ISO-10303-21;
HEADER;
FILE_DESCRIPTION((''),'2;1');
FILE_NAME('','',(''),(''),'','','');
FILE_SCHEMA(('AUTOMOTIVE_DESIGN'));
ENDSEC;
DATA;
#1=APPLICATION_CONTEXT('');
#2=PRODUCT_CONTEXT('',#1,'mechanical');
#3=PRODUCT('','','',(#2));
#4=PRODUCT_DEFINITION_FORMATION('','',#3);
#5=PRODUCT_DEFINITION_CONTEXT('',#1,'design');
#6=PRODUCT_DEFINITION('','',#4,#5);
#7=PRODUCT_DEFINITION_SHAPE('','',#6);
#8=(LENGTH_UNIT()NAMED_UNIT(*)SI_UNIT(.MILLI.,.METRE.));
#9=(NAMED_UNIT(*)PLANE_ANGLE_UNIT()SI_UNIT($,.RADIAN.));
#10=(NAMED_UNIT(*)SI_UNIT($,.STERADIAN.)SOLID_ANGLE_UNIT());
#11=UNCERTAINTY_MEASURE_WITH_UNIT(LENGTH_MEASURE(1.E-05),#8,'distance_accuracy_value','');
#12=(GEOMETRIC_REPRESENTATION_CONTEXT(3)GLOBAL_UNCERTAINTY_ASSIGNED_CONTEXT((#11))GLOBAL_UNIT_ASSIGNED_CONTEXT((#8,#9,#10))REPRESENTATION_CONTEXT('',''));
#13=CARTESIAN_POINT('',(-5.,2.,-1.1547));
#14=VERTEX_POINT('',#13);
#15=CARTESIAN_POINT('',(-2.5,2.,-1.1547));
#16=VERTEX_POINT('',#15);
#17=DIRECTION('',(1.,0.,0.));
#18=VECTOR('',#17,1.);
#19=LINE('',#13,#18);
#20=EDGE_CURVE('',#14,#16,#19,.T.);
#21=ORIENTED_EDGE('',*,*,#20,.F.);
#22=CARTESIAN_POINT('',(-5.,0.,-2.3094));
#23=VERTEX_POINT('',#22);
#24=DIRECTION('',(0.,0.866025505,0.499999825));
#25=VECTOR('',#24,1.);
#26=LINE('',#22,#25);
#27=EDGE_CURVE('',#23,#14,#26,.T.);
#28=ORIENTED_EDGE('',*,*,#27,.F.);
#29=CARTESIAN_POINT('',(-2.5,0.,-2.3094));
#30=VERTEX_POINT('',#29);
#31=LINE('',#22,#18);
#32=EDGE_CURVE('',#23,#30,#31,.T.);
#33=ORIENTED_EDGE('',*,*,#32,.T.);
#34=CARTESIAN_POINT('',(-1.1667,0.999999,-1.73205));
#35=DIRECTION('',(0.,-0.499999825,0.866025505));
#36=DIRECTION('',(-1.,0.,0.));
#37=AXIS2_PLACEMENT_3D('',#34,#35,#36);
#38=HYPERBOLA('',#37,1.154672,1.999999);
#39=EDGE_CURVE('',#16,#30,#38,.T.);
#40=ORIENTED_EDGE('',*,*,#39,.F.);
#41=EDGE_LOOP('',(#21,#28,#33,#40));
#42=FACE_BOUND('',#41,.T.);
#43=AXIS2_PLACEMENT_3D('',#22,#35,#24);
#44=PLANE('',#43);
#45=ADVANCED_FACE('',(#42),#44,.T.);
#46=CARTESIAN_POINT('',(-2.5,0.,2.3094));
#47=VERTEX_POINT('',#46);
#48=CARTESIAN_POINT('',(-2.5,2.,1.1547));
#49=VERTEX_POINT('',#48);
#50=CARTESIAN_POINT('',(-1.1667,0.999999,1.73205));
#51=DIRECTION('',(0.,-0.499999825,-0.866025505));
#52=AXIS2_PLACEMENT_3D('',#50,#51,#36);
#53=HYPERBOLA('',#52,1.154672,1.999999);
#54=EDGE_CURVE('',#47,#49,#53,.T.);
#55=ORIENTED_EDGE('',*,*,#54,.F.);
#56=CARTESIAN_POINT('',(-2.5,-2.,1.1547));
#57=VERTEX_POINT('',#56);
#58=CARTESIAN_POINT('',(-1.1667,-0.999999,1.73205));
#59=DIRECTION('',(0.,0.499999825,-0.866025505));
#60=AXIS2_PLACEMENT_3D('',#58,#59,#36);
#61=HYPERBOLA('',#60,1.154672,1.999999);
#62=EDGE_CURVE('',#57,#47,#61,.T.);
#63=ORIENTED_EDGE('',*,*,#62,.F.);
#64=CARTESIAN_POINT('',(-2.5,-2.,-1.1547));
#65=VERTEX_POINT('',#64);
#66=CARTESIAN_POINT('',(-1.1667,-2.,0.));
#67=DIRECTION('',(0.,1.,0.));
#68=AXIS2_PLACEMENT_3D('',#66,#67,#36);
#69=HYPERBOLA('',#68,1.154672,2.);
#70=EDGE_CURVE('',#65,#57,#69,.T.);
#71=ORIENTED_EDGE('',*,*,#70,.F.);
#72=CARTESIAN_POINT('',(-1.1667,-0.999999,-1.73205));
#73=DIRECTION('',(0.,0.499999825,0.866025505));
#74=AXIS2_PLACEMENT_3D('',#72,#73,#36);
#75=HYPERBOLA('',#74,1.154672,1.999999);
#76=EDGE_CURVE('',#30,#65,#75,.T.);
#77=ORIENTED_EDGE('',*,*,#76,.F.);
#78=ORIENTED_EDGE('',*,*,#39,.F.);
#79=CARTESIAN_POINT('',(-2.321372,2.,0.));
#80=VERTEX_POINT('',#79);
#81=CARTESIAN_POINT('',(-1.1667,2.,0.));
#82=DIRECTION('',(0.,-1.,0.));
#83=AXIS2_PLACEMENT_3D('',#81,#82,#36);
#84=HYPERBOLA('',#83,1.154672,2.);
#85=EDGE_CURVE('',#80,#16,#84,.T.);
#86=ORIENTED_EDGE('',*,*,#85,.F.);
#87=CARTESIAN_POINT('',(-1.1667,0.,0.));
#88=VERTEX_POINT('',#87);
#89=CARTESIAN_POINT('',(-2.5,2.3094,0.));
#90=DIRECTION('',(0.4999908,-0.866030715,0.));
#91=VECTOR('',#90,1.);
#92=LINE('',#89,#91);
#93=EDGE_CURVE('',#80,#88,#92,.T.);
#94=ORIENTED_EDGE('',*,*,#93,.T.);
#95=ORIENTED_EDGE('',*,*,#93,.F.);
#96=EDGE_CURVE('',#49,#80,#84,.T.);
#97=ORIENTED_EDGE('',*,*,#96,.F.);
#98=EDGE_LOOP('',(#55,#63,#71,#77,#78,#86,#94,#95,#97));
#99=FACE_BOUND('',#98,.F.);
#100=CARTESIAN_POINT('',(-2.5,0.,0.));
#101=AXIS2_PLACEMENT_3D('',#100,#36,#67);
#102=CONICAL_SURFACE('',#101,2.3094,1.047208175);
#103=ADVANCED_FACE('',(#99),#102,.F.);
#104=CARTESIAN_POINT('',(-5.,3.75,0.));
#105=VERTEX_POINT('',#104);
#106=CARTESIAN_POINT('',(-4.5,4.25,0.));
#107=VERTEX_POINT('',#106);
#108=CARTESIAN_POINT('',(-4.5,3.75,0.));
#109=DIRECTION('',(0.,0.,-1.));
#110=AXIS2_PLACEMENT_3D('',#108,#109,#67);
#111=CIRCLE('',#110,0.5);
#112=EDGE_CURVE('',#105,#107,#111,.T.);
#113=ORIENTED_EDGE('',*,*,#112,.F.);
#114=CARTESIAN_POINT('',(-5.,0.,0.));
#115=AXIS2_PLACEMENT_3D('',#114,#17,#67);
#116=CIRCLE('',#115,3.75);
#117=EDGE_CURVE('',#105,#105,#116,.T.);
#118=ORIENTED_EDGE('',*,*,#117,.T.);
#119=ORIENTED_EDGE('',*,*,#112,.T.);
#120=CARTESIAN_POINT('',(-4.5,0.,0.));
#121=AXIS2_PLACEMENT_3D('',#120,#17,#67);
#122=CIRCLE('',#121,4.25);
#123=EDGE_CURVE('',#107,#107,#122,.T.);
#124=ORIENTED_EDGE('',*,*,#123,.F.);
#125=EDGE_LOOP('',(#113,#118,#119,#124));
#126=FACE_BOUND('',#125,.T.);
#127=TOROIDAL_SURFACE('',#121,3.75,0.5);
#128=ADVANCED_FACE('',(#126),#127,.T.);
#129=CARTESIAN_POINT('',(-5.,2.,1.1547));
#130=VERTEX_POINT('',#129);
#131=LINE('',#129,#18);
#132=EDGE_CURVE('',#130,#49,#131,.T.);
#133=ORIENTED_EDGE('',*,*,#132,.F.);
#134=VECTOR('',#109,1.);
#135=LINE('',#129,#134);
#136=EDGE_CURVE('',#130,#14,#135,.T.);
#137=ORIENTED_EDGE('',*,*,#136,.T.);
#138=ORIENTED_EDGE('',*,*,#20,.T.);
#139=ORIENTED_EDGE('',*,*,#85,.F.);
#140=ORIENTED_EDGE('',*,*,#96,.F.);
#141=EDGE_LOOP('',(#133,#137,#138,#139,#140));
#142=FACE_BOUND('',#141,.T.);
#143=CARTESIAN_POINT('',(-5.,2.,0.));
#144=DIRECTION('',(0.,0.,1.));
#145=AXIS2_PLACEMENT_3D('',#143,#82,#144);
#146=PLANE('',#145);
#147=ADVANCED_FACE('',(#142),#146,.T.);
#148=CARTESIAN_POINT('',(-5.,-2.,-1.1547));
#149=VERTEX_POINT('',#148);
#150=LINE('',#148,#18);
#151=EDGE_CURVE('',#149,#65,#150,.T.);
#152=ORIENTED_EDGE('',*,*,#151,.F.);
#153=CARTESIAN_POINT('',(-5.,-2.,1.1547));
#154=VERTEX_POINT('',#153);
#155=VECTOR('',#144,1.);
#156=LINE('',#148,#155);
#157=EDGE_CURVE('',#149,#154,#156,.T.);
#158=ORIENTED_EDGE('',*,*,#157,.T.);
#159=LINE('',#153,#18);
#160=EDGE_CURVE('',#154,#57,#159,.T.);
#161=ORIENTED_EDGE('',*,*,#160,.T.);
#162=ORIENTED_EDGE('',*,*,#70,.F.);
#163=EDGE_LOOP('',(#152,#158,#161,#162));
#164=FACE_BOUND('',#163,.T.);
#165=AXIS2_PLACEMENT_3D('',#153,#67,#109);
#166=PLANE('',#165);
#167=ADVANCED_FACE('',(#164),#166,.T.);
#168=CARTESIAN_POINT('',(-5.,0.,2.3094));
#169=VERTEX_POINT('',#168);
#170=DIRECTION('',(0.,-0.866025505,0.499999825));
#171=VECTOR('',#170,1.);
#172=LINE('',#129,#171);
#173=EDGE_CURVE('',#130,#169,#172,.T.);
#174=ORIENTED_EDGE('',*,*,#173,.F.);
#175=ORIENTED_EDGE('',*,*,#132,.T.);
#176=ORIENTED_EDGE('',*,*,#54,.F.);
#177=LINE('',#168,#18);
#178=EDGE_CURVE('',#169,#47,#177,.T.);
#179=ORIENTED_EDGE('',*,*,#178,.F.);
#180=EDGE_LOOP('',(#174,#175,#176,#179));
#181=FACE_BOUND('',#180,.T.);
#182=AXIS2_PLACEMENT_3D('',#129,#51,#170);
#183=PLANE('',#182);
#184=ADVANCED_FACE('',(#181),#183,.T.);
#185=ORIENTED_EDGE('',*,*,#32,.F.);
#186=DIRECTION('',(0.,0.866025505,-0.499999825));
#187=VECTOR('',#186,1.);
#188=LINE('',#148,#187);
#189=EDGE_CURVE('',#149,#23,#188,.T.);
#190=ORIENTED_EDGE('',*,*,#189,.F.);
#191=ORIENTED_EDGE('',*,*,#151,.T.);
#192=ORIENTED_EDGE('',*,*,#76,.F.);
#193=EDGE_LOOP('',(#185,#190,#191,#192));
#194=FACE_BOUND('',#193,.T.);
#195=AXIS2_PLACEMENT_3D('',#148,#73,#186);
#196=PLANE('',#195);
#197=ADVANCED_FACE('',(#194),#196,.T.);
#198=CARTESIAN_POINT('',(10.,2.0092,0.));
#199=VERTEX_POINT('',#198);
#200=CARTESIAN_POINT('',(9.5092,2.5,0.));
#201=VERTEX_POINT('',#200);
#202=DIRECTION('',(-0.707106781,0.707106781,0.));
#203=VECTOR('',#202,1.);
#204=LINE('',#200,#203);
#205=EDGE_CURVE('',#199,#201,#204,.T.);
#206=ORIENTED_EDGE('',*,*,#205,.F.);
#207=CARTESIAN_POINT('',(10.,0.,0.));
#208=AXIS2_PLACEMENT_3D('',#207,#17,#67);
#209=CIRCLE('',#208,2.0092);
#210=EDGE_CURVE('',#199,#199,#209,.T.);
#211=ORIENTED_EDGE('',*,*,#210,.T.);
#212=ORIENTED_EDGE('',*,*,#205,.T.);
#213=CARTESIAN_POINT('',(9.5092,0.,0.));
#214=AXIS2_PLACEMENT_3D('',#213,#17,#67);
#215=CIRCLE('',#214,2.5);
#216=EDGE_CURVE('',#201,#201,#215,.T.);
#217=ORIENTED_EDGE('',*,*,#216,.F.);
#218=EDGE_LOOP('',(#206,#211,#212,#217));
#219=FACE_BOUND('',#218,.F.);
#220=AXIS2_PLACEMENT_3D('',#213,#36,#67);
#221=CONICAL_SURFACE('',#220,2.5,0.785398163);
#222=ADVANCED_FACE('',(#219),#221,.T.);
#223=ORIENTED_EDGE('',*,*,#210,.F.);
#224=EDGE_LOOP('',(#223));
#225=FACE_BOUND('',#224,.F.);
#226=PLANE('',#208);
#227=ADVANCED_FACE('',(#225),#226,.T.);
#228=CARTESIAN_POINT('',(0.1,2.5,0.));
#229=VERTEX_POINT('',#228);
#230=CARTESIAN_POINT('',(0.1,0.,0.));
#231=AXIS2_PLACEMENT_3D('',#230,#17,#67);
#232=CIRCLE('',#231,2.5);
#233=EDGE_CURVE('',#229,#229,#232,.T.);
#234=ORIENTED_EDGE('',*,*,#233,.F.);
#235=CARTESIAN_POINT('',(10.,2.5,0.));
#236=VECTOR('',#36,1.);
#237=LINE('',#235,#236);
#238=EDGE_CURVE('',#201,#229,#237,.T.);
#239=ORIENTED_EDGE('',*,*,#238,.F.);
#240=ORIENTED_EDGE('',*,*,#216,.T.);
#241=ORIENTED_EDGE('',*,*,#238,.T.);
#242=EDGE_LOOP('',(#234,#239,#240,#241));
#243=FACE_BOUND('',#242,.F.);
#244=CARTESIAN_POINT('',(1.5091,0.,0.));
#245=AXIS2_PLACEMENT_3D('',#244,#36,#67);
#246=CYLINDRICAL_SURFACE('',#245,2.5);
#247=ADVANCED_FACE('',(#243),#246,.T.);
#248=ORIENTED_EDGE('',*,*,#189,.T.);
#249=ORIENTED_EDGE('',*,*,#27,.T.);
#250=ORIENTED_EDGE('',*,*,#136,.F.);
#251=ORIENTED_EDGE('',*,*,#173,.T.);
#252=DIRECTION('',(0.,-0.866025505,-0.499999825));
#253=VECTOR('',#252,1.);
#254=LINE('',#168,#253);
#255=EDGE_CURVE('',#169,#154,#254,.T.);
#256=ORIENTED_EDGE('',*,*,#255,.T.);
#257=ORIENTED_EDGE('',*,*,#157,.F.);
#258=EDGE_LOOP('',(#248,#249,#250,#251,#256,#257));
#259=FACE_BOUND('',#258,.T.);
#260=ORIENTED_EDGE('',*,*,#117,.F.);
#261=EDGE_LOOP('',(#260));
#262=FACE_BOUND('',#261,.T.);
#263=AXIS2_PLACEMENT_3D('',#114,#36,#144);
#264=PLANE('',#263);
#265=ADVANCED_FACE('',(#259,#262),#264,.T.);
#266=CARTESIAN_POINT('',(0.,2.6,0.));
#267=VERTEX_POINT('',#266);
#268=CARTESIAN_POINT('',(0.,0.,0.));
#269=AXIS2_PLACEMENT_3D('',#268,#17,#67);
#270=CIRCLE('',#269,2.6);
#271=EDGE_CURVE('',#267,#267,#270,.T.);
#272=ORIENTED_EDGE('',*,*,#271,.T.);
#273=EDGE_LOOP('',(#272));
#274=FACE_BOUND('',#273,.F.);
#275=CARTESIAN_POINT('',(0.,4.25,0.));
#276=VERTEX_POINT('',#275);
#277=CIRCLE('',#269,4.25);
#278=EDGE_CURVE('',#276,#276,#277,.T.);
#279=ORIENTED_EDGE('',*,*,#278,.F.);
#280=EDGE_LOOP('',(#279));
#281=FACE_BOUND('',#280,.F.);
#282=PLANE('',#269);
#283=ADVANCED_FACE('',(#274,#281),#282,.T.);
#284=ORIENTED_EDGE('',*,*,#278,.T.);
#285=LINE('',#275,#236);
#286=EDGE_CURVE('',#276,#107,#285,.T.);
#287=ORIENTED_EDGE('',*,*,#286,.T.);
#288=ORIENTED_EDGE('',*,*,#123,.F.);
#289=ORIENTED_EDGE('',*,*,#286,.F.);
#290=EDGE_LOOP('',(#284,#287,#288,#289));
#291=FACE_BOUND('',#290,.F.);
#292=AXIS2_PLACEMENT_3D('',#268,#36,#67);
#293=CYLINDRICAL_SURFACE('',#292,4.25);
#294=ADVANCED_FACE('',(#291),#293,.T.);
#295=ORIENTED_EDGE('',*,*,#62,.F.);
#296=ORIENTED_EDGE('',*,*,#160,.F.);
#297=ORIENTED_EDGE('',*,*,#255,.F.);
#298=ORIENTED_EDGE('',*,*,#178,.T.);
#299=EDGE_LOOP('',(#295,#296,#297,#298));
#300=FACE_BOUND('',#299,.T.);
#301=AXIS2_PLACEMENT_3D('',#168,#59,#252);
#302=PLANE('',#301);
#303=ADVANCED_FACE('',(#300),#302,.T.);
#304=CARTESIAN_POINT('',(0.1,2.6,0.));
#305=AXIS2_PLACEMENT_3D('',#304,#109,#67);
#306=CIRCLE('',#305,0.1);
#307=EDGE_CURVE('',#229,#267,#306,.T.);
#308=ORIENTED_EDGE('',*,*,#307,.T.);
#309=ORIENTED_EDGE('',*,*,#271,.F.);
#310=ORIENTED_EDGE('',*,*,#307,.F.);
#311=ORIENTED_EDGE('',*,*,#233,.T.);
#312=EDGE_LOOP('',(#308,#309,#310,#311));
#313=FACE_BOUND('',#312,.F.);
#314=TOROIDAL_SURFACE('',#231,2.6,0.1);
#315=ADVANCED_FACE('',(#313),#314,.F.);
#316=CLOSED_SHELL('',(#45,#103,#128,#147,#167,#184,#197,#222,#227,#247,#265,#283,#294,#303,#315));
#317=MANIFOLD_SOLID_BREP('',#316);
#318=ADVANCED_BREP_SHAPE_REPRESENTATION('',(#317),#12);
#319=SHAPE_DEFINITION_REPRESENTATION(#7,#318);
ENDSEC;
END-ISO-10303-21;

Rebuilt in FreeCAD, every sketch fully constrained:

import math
import FreeCAD as App
import Part
import Sketcher

V = App.Vector
Q = App.Units.Quantity


def edges_at(feature, points):
    """Names of the edges that pass closest to the given points."""
    edges = feature.Shape.Edges
    near = lambda p: min(range(len(edges)), key=lambda i: edges[i].distToShape(Part.Vertex(*p))[0])
    return sorted({f"Edge{near(p) + 1}" for p in points})

doc = App.newDocument("Part")
body = doc.addObject("PartDesign::Body", "Body")

# Sketch on XY plane
sketch1 = body.newObject("Sketcher::SketchObject", "Sketch")
sketch1.AttachmentSupport = (doc.getObject("XY_Plane"), [""])
sketch1.MapMode = "FlatFace"
sketch1.addGeometry([
    Part.LineSegment(V(-2.5, 2.3094, 0), V(-1.1667, 0, 0)),  # 0
    Part.LineSegment(V(-1.1667, 0, 0), V(10, 0, 0)),  # 1
    Part.LineSegment(V(10, 0, 0), V(10, 2.5, 0)),  # 2
    Part.LineSegment(V(10, 2.5, 0), V(0, 2.5, 0)),  # 3
    Part.LineSegment(V(0, 2.5, 0), V(0, 4.25, 0)),  # 4
    Part.LineSegment(V(0, 4.25, 0), V(-5, 4.25, 0)),  # 5
    Part.LineSegment(V(-5, 4.25, 0), V(-5, 2.3094, 0)),  # 6
    Part.LineSegment(V(-5, 2.3094, 0), V(-2.5, 2.3094, 0)),  # 7
], False)
sketch1.addConstraint([
    Sketcher.Constraint("Coincident", 0, 2, 1, 1),
    Sketcher.Constraint("Coincident", 1, 2, 2, 1),
    Sketcher.Constraint("Coincident", 2, 2, 3, 1),
    Sketcher.Constraint("Coincident", 3, 2, 4, 1),
    Sketcher.Constraint("Coincident", 4, 2, 5, 1),
    Sketcher.Constraint("Coincident", 5, 2, 6, 1),
    Sketcher.Constraint("Coincident", 6, 2, 7, 1),
    Sketcher.Constraint("Coincident", 7, 2, 0, 1),
    Sketcher.Constraint("Horizontal", 1),
    Sketcher.Constraint("Vertical", 2),
    Sketcher.Constraint("Horizontal", 3),
    Sketcher.Constraint("Vertical", 4),
    Sketcher.Constraint("Horizontal", 5),
    Sketcher.Constraint("Vertical", 6),
    Sketcher.Constraint("Horizontal", 7),
    Sketcher.Constraint("PointOnObject", 0, 2, -1),
    Sketcher.Constraint("PointOnObject", 3, 2, -2),
    Sketcher.Constraint("Equal", 7, 2),
    Sketcher.Constraint("DistanceX", 3, 2, 3, 1, Q("10 mm")),
    Sketcher.Constraint("DistanceX", 5, 2, 5, 1, Q("5 mm")),
    Sketcher.Constraint("DistanceX", 7, 1, 7, 2, Q("2.5 mm")),
    Sketcher.Constraint("Angle", 0, Q("-60.0006 deg")),
    Sketcher.Constraint("DistanceY", 4, 1, 4, 2, Q("1.75 mm")),
    Sketcher.Constraint("DistanceX", 1, 1, 1, 2, Q("11.1667 mm")),
])
revolution = body.newObject("PartDesign::Revolution", "Revolution")
revolution.Profile = sketch1
revolution.ReferenceAxis = (sketch1, ["H_Axis"])
revolution.Angle = 360

# Sketch on YZ plane
sketch2 = body.newObject("Sketcher::SketchObject", "Sketch001")
sketch2.AttachmentSupport = (doc.getObject("YZ_Plane"), [""])
sketch2.MapMode = "FlatFace"
sketch2.AttachmentOffset = App.Placement(V(0, 0, -5), App.Rotation())
sketch2.addGeometry([
    Part.LineSegment(V(2, 1.1547, 0), V(0, 2.3094, 0)),  # 0
    Part.ArcOfCircle(Part.Circle(V(0, 0, 0), V(0, 0, 1), 2.3094), math.radians(29.999988), math.radians(90)),  # 1
    Part.ArcOfCircle(Part.Circle(V(0, 0, 0), V(0, 0, 1), 2.3094), math.radians(90), math.radians(150.000012)),  # 2
    Part.LineSegment(V(0, 2.3094, 0), V(-2, 1.1547, 0)),  # 3
    Part.ArcOfCircle(Part.Circle(V(0, 0, 0), V(0, 0, 1), 2.3094), math.radians(-29.999988), math.radians(29.999988)),  # 4
    Part.LineSegment(V(2, -1.1547, 0), V(2, 1.1547, 0)),  # 5
    Part.LineSegment(V(-2, 1.1547, 0), V(-2, -1.1547, 0)),  # 6
    Part.ArcOfCircle(Part.Circle(V(0, 0, 0), V(0, 0, 1), 2.3094), math.radians(150.000012), math.radians(209.999988)),  # 7
    Part.LineSegment(V(-2, -1.1547, 0), V(0, -2.3094, 0)),  # 8
    Part.ArcOfCircle(Part.Circle(V(0, 0, 0), V(0, 0, 1), 2.3094), math.radians(-150.000012), math.radians(-90)),  # 9
    Part.ArcOfCircle(Part.Circle(V(0, 0, 0), V(0, 0, 1), 2.3094), math.radians(-90), math.radians(-29.999988)),  # 10
    Part.LineSegment(V(0, -2.3094, 0), V(2, -1.1547, 0)),  # 11
], False)
sketch2.addConstraint([
    Sketcher.Constraint("Coincident", 0, 1, 1, 1),
    Sketcher.Constraint("Coincident", 1, 2, 0, 2),
    Sketcher.Constraint("Coincident", 2, 1, 3, 1),
    Sketcher.Constraint("Coincident", 3, 2, 2, 2),
    Sketcher.Constraint("Coincident", 4, 1, 5, 1),
    Sketcher.Constraint("Coincident", 5, 2, 4, 2),
    Sketcher.Constraint("Coincident", 6, 1, 7, 1),
    Sketcher.Constraint("Coincident", 7, 2, 6, 2),
    Sketcher.Constraint("Coincident", 8, 1, 9, 1),
    Sketcher.Constraint("Coincident", 9, 2, 8, 2),
    Sketcher.Constraint("Coincident", 10, 1, 11, 1),
    Sketcher.Constraint("Coincident", 11, 2, 10, 2),
    Sketcher.Constraint("Vertical", 5),
    Sketcher.Constraint("Vertical", 6),
    Sketcher.Constraint("Coincident", 1, 3, -1, 1),
    Sketcher.Constraint("Coincident", 2, 3, -1, 1),
    Sketcher.Constraint("Coincident", 4, 3, -1, 1),
    Sketcher.Constraint("Coincident", 7, 3, -1, 1),
    Sketcher.Constraint("Coincident", 9, 3, -1, 1),
    Sketcher.Constraint("Coincident", 10, 3, -1, 1),
    Sketcher.Constraint("Coincident", 2, 1, 1, 2),
    Sketcher.Constraint("Coincident", 5, 2, 0, 1),
    Sketcher.Constraint("Coincident", 6, 1, 3, 2),
    Sketcher.Constraint("Coincident", 8, 1, 7, 2),
    Sketcher.Constraint("Coincident", 10, 1, 9, 2),
    Sketcher.Constraint("PointOnObject", 1, 2, -2),
    Sketcher.Constraint("PointOnObject", 9, 2, -2),
    Sketcher.Constraint("Parallel", 0, 8),
    Sketcher.Constraint("Parallel", 3, 11),
    Sketcher.Constraint("Angle", 0, Q("150 deg")),
    Sketcher.Constraint("DistanceX", -1, 1, 0, 1, Q("2 mm")),
])
pad1 = body.newObject("PartDesign::Pad", "Pad")
pad1.Profile = sketch2
pad1.Length = 2.6786
doc.recompute()

fillet = body.newObject("PartDesign::Fillet", "Fillet")
fillet.Base = (pad1, edges_at(pad1, [(-5, -4.25, 0)]))
fillet.Radius = 0.5
doc.recompute()

chamfer = body.newObject("PartDesign::Chamfer", "Chamfer")
chamfer.Base = (fillet, edges_at(fillet, [(10, -2.5, 0)]))
chamfer.ChamferType = "Two distances"
chamfer.Size = 0.4908
chamfer.Size2 = 0.4908
doc.recompute()

fillet2 = body.newObject("PartDesign::Fillet", "Fillet001")
fillet2.Base = (chamfer, edges_at(chamfer, [(0, -2.5, 0)]))
fillet2.Radius = 0.1

doc.recompute()
